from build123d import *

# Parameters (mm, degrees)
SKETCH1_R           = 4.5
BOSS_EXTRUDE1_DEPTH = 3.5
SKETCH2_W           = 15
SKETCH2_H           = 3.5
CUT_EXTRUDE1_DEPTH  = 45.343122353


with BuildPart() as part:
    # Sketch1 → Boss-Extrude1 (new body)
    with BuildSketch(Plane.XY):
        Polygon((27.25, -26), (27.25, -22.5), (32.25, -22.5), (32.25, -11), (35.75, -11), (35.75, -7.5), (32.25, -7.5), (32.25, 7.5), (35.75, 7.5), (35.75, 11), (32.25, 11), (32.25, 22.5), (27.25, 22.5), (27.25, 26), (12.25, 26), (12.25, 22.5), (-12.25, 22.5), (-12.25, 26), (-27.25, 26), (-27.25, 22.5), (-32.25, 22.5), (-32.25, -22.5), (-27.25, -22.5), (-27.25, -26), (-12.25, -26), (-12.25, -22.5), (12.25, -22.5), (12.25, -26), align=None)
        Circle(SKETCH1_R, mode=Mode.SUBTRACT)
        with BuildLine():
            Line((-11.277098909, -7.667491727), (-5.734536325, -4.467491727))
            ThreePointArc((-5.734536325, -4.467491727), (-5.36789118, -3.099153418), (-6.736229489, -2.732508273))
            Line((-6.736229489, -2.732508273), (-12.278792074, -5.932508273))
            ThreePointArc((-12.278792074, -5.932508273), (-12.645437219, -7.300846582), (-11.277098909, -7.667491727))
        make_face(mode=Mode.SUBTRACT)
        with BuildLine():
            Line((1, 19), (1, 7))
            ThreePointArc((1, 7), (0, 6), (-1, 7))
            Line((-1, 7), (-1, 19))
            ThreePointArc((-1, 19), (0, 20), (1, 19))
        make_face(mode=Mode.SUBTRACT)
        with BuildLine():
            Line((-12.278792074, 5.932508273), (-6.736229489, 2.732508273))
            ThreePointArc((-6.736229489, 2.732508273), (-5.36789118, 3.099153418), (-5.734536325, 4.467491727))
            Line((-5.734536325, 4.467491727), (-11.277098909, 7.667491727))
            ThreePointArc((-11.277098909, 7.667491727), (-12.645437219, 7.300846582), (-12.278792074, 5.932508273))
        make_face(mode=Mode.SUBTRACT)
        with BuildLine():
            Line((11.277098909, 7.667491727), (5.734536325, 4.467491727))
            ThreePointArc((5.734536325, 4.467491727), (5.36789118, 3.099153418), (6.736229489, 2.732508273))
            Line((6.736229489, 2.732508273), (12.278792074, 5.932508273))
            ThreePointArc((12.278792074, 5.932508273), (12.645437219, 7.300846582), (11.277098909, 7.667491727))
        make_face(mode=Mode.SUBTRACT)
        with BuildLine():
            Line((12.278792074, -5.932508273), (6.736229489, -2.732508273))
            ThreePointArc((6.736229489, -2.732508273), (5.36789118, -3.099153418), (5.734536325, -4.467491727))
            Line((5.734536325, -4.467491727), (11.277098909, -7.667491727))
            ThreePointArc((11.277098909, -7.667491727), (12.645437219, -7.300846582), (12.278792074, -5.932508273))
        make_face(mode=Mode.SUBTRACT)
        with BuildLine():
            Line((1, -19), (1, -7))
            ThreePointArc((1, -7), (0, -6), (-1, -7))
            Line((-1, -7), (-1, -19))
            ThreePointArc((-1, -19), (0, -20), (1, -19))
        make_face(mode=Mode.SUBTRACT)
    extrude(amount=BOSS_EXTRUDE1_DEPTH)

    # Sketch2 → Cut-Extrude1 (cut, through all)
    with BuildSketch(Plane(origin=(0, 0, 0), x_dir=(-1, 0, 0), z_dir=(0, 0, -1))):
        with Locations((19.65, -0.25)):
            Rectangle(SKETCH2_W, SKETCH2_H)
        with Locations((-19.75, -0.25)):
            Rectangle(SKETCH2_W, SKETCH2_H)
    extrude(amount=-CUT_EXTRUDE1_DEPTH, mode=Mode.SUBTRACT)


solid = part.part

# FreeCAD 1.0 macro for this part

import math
import FreeCAD as App
import Part
import Sketcher
from FreeCAD import Vector
Q = App.Units.Quantity


def add_polygon(sketch, points):
    """Adds a closed chain of lines whose ends are joined by coincident constraints."""
    first, n = sketch.GeometryCount, len(points)
    for a, b in zip(points, points[1:] + points[:1]):
        sketch.addGeometry(Part.LineSegment(App.Vector(*a, 0), App.Vector(*b, 0)), False)
    for i in range(n):
        sketch.addConstraint(Sketcher.Constraint("Coincident", first + i, 2, first + (i + 1) % n, 1))

doc = App.newDocument("Part")
body = doc.addObject("PartDesign::Body", "Body")

sketch1 = body.newObject("Sketcher::SketchObject", "Sketch")
sketch1.AttachmentSupport = (doc.getObject("XY_Plane"), [""])
sketch1.MapMode = "FlatFace"
add_polygon(sketch1, [(27.25, -26), (27.25, -22.5), (32.25, -22.5), (32.25, -11), (35.75, -11), (35.75, -7.5), (32.25, -7.5), (32.25, 7.5), (35.75, 7.5), (35.75, 11), (32.25, 11), (32.25, 22.5), (27.25, 22.5), (27.25, 26), (12.25, 26), (12.25, 22.5), (-12.25, 22.5), (-12.25, 26), (-27.25, 26), (-27.25, 22.5), (-32.25, 22.5), (-32.25, -22.5), (-27.25, -22.5), (-27.25, -26), (-12.25, -26), (-12.25, -22.5), (12.25, -22.5), (12.25, -26)])
sketch1.addGeometry(Part.LineSegment(Vector(-5.734536, -4.467492, 0), Vector(-11.277099, -7.667492, 0)), False)
sketch1.addGeometry(Part.ArcOfCircle(Part.Circle(Vector(-11.777945, -6.8, 0), Vector(0, 0, 1), 1.001693), math.radians(120), math.radians(300)), False)
sketch1.addGeometry(Part.LineSegment(Vector(-12.278792, -5.932508, 0), Vector(-6.736229, -2.732508, 0)), False)
sketch1.addGeometry(Part.ArcOfCircle(Part.Circle(Vector(-6.235383, -3.6, 0), Vector(0, 0, 1), 1.001693), math.radians(-60), math.radians(120)), False)
sketch1.addGeometry(Part.LineSegment(Vector(1, -7, 0), Vector(1, -19, 0)), False)
sketch1.addGeometry(Part.ArcOfCircle(Part.Circle(Vector(0, -19, 0), Vector(0, 0, 1), 1), math.radians(180), math.radians(360)), False)
sketch1.addGeometry(Part.LineSegment(Vector(-1, -19, 0), Vector(-1, -7, 0)), False)
sketch1.addGeometry(Part.ArcOfCircle(Part.Circle(Vector(0, -7, 0), Vector(0, 0, 1), 1), math.radians(0), math.radians(180)), False)
sketch1.addGeometry(Part.LineSegment(Vector(6.736229, -2.732508, 0), Vector(12.278792, -5.932508, 0)), False)
sketch1.addGeometry(Part.ArcOfCircle(Part.Circle(Vector(11.777945, -6.8, 0), Vector(0, 0, 1), 1.001693), math.radians(-120), math.radians(60)), False)
sketch1.addGeometry(Part.LineSegment(Vector(11.277099, -7.667492, 0), Vector(5.734536, -4.467492, 0)), False)
sketch1.addGeometry(Part.ArcOfCircle(Part.Circle(Vector(6.235383, -3.6, 0), Vector(0, 0, 1), 1.001693), math.radians(60), math.radians(240)), False)
sketch1.addGeometry(Part.LineSegment(Vector(-6.736229, 2.732508, 0), Vector(-12.278792, 5.932508, 0)), False)
sketch1.addGeometry(Part.ArcOfCircle(Part.Circle(Vector(-11.777945, 6.8, 0), Vector(0, 0, 1), 1.001693), math.radians(60), math.radians(240)), False)
sketch1.addGeometry(Part.LineSegment(Vector(-11.277099, 7.667492, 0), Vector(-5.734536, 4.467492, 0)), False)
sketch1.addGeometry(Part.ArcOfCircle(Part.Circle(Vector(-6.235383, 3.6, 0), Vector(0, 0, 1), 1.001693), math.radians(-120), math.radians(60)), False)
sketch1.addGeometry(Part.Circle(Vector(0, 0, 0), Vector(0, 0, 1), 4.5), False)
sketch1.addGeometry(Part.LineSegment(Vector(5.734536, 4.467492, 0), Vector(11.277099, 7.667492, 0)), False)
sketch1.addGeometry(Part.ArcOfCircle(Part.Circle(Vector(11.777945, 6.8, 0), Vector(0, 0, 1), 1.001693), math.radians(-60), math.radians(120)), False)
sketch1.addGeometry(Part.LineSegment(Vector(12.278792, 5.932508, 0), Vector(6.736229, 2.732508, 0)), False)
sketch1.addGeometry(Part.ArcOfCircle(Part.Circle(Vector(6.235383, 3.6, 0), Vector(0, 0, 1), 1.001693), math.radians(120), math.radians(300)), False)
sketch1.addGeometry(Part.ArcOfCircle(Part.Circle(Vector(0, 19, 0), Vector(0, 0, 1), 1), math.radians(0), math.radians(180)), False)
sketch1.addGeometry(Part.LineSegment(Vector(1, 19, 0), Vector(1, 7, 0)), False)
sketch1.addGeometry(Part.ArcOfCircle(Part.Circle(Vector(0, 7, 0), Vector(0, 0, 1), 1), math.radians(180), math.radians(360)), False)
sketch1.addGeometry(Part.LineSegment(Vector(-1, 7, 0), Vector(-1, 19, 0)), False)
sketch1.addConstraint(Sketcher.Constraint("Tangent", 28, 2, 29, 2))
sketch1.addConstraint(Sketcher.Constraint("Tangent", 29, 1, 30, 1))
sketch1.addConstraint(Sketcher.Constraint("Tangent", 30, 2, 31, 2))
sketch1.addConstraint(Sketcher.Constraint("Tangent", 31, 1, 28, 1))
sketch1.addConstraint(Sketcher.Constraint("Tangent", 32, 2, 33, 2))
sketch1.addConstraint(Sketcher.Constraint("Tangent", 33, 1, 34, 1))
sketch1.addConstraint(Sketcher.Constraint("Tangent", 34, 2, 35, 2))
sketch1.addConstraint(Sketcher.Constraint("Tangent", 35, 1, 32, 1))
sketch1.addConstraint(Sketcher.Constraint("Tangent", 36, 2, 37, 2))
sketch1.addConstraint(Sketcher.Constraint("Tangent", 37, 1, 38, 1))
sketch1.addConstraint(Sketcher.Constraint("Tangent", 38, 2, 39, 2))
sketch1.addConstraint(Sketcher.Constraint("Tangent", 39, 1, 36, 1))
sketch1.addConstraint(Sketcher.Constraint("Tangent", 40, 2, 41, 2))
sketch1.addConstraint(Sketcher.Constraint("Tangent", 41, 1, 42, 1))
sketch1.addConstraint(Sketcher.Constraint("Tangent", 42, 2, 43, 2))
sketch1.addConstraint(Sketcher.Constraint("Tangent", 43, 1, 40, 1))
sketch1.addConstraint(Sketcher.Constraint("Tangent", 45, 2, 46, 2))
sketch1.addConstraint(Sketcher.Constraint("Tangent", 46, 1, 47, 1))
sketch1.addConstraint(Sketcher.Constraint("Tangent", 47, 2, 48, 2))
sketch1.addConstraint(Sketcher.Constraint("Tangent", 48, 1, 45, 1))
sketch1.addConstraint(Sketcher.Constraint("Tangent", 49, 1, 50, 1))
sketch1.addConstraint(Sketcher.Constraint("Tangent", 50, 2, 51, 2))
sketch1.addConstraint(Sketcher.Constraint("Tangent", 51, 1, 52, 1))
sketch1.addConstraint(Sketcher.Constraint("Tangent", 52, 2, 49, 2))
sketch1.addConstraint(Sketcher.Constraint("Vertical", 0))
sketch1.addConstraint(Sketcher.Constraint("Horizontal", 1))
sketch1.addConstraint(Sketcher.Constraint("Vertical", 2))
sketch1.addConstraint(Sketcher.Constraint("Horizontal", 3))
sketch1.addConstraint(Sketcher.Constraint("Vertical", 4))
sketch1.addConstraint(Sketcher.Constraint("Horizontal", 5))
sketch1.addConstraint(Sketcher.Constraint("Vertical", 6))
sketch1.addConstraint(Sketcher.Constraint("Horizontal", 7))
sketch1.addConstraint(Sketcher.Constraint("Vertical", 8))
sketch1.addConstraint(Sketcher.Constraint("Horizontal", 9))
sketch1.addConstraint(Sketcher.Constraint("Vertical", 10))
sketch1.addConstraint(Sketcher.Constraint("Horizontal", 11))
sketch1.addConstraint(Sketcher.Constraint("Vertical", 12))
sketch1.addConstraint(Sketcher.Constraint("Horizontal", 13))
sketch1.addConstraint(Sketcher.Constraint("Vertical", 14))
sketch1.addConstraint(Sketcher.Constraint("Horizontal", 15))
sketch1.addConstraint(Sketcher.Constraint("Vertical", 16))
sketch1.addConstraint(Sketcher.Constraint("Horizontal", 17))
sketch1.addConstraint(Sketcher.Constraint("Vertical", 18))
sketch1.addConstraint(Sketcher.Constraint("Horizontal", 19))
sketch1.addConstraint(Sketcher.Constraint("Vertical", 20))
sketch1.addConstraint(Sketcher.Constraint("Horizontal", 21))
sketch1.addConstraint(Sketcher.Constraint("Vertical", 22))
sketch1.addConstraint(Sketcher.Constraint("Horizontal", 23))
sketch1.addConstraint(Sketcher.Constraint("Vertical", 24))
sketch1.addConstraint(Sketcher.Constraint("Horizontal", 25))
sketch1.addConstraint(Sketcher.Constraint("Vertical", 26))
sketch1.addConstraint(Sketcher.Constraint("Horizontal", 27))
sketch1.addConstraint(Sketcher.Constraint("Vertical", 32))
sketch1.addConstraint(Sketcher.Constraint("Vertical", 34))
sketch1.addConstraint(Sketcher.Constraint("Vertical", 50))
sketch1.addConstraint(Sketcher.Constraint("Vertical", 52))
sketch1.addConstraint(Sketcher.Constraint("Coincident", 44, 3, -1, 1))
sketch1.addConstraint(Sketcher.Constraint("Equal", 29, 31))
sketch1.addConstraint(Sketcher.Constraint("Equal", 31, 37))
sketch1.addConstraint(Sketcher.Constraint("Equal", 37, 39))
sketch1.addConstraint(Sketcher.Constraint("Equal", 39, 41))
sketch1.addConstraint(Sketcher.Constraint("Equal", 41, 43))
sketch1.addConstraint(Sketcher.Constraint("Equal", 43, 46))
sketch1.addConstraint(Sketcher.Constraint("Equal", 46, 48))
sketch1.addConstraint(Sketcher.Constraint("Equal", 35, 49))
sketch1.addConstraint(Sketcher.Constraint("Symmetric", 37, 3, 41, 3, -1, 1))
sketch1.addConstraint(Sketcher.Constraint("Symmetric", 39, 3, 43, 3, -1, 1))
sketch1.addConstraint(Sketcher.Constraint("Symmetric", 29, 3, 46, 3, -1, 1))
sketch1.addConstraint(Sketcher.Constraint("Symmetric", 31, 3, 48, 3, -1, 1))
sketch1.addConstraint(Sketcher.Constraint("Symmetric", 33, 3, 49, 3, -1, 1))
sketch1.addConstraint(Sketcher.Constraint("Symmetric", 0, 2, 18, 2, -1, 1))
sketch1.addConstraint(Sketcher.Constraint("Symmetric", 10, 2, 20, 2, -1, 1))
sketch1.addConstraint(Sketcher.Constraint("Symmetric", 12, 2, 22, 2, -1, 1))
sketch1.addConstraint(Sketcher.Constraint("Symmetric", 14, 2, 24, 2, -1, 1))
sketch1.addConstraint(Sketcher.Constraint("Symmetric", 16, 2, 26, 2, -1, 1))
sketch1.addConstraint(Sketcher.Constraint("Symmetric", 29, 3, 37, 3, -2))
sketch1.addConstraint(Sketcher.Constraint("Symmetric", 31, 3, 39, 3, -2))
sketch1.addConstraint(Sketcher.Constraint("Symmetric", 13, 2, 16, 2, -2))
sketch1.addConstraint(Sketcher.Constraint("Symmetric", 11, 2, 18, 2, -2))
sketch1.addConstraint(Sketcher.Constraint("Symmetric", 35, 3, 51, 3, -1))
sketch1.addConstraint(Sketcher.Constraint("Symmetric", 4, 2, 7, 2, -1))
sketch1.addConstraint(Sketcher.Constraint("Symmetric", 2, 2, 9, 2, -1))
sketch1.addConstraint(Sketcher.Constraint("Horizontal", 11, 2, 14, 2))
sketch1.addConstraint(Sketcher.Constraint("Vertical", 2, 2, 5, 2))
sketch1.addConstraint(Sketcher.Constraint("Equal", 9, 0))
sketch1.addConstraint(Sketcher.Constraint("Equal", 0, 4))
sketch1.addConstraint(Sketcher.Constraint("Equal", 27, 6))
sketch1.addConstraint(Sketcher.Constraint("Diameter", 44, Q("9 mm")))
sketch1.addConstraint(Sketcher.Constraint("Radius", 33, Q("1 mm")))
sketch1.addConstraint(Sketcher.Constraint("DistanceX", 1, 1, 1, 2, Q("5 mm")))
sketch1.addConstraint(Sketcher.Constraint("DistanceX", 13, 2, 13, 1, Q("15 mm")))
sketch1.addConstraint(Sketcher.Constraint("DistanceY", 20, 2, 20, 1, Q("45 mm")))
sketch1.addConstraint(Sketcher.Constraint("DistanceY", 32, 2, 32, 1, Q("12 mm")))
sketch1.addConstraint(Sketcher.Constraint("Angle", 28, Q("-150 deg")))
sketch1.addConstraint(Sketcher.Constraint("DistanceX", 3, 1, 3, 2, Q("3.5 mm")))
sketch1.addConstraint(Sketcher.Constraint("DistanceX", 15, 2, 15, 1, Q("24.5 mm")))
sketch1.addConstraint(Sketcher.Constraint("DistanceY", 33, 3, -1, 1, Q("19 mm")))
sketch1.addConstraint(Sketcher.Constraint("Distance", 28, Q("6.4 mm")))
sketch1.addConstraint(Sketcher.Constraint("DistanceY", 29, 3, -1, 1, Q("6.8 mm")))
sketch1.addConstraint(Sketcher.Constraint("Radius", 29, Q("1.001693 mm")))
sketch1.addConstraint(Sketcher.Constraint("DistanceX", 28, 2, -1, 1, Q("11.277099 mm")))
pad1 = body.newObject("PartDesign::Pad", "Pad")
pad1.Profile = sketch1
pad1.Length = 3.5

sketch2 = body.newObject("Sketcher::SketchObject", "Sketch001")
sketch2.AttachmentSupport = (doc.getObject("XY_Plane"), [""])
sketch2.MapMode = "FlatFace"
add_polygon(sketch2, [(-12.15, 1.5), (-12.15, -2), (-27.15, -2), (-27.15, 1.5)])
add_polygon(sketch2, [(27.25, 1.5), (27.25, -2), (12.25, -2), (12.25, 1.5)])
sketch2.addConstraint(Sketcher.Constraint("Vertical", 0))
sketch2.addConstraint(Sketcher.Constraint("Horizontal", 1))
sketch2.addConstraint(Sketcher.Constraint("Vertical", 2))
sketch2.addConstraint(Sketcher.Constraint("Horizontal", 3))
sketch2.addConstraint(Sketcher.Constraint("Vertical", 4))
sketch2.addConstraint(Sketcher.Constraint("Horizontal", 5))
sketch2.addConstraint(Sketcher.Constraint("Vertical", 6))
sketch2.addConstraint(Sketcher.Constraint("Horizontal", 7))
sketch2.addConstraint(Sketcher.Constraint("Horizontal", 1, 2, 4, 2))
sketch2.addConstraint(Sketcher.Constraint("Horizontal", 3, 2, 6, 2))
sketch2.addConstraint(Sketcher.Constraint("Equal", 3, 5))
sketch2.addConstraint(Sketcher.Constraint("DistanceX", 1, 2, 1, 1, Q("15 mm")))
sketch2.addConstraint(Sketcher.Constraint("DistanceY", 0, 2, 0, 1, Q("3.5 mm")))
sketch2.addConstraint(Sketcher.Constraint("DistanceY", 0, 2, -1, 1, Q("2 mm")))
sketch2.addConstraint(Sketcher.Constraint("DistanceX", 0, 2, 4, 2, Q("39.4 mm")))
sketch2.addConstraint(Sketcher.Constraint("DistanceX", 0, 2, -1, 1, Q("12.15 mm")))
pocket1 = body.newObject("PartDesign::Pocket", "Pocket")
pocket1.Profile = sketch2
pocket1.Type = "ThroughAll"
pocket1.Reversed = True

doc.recompute()
